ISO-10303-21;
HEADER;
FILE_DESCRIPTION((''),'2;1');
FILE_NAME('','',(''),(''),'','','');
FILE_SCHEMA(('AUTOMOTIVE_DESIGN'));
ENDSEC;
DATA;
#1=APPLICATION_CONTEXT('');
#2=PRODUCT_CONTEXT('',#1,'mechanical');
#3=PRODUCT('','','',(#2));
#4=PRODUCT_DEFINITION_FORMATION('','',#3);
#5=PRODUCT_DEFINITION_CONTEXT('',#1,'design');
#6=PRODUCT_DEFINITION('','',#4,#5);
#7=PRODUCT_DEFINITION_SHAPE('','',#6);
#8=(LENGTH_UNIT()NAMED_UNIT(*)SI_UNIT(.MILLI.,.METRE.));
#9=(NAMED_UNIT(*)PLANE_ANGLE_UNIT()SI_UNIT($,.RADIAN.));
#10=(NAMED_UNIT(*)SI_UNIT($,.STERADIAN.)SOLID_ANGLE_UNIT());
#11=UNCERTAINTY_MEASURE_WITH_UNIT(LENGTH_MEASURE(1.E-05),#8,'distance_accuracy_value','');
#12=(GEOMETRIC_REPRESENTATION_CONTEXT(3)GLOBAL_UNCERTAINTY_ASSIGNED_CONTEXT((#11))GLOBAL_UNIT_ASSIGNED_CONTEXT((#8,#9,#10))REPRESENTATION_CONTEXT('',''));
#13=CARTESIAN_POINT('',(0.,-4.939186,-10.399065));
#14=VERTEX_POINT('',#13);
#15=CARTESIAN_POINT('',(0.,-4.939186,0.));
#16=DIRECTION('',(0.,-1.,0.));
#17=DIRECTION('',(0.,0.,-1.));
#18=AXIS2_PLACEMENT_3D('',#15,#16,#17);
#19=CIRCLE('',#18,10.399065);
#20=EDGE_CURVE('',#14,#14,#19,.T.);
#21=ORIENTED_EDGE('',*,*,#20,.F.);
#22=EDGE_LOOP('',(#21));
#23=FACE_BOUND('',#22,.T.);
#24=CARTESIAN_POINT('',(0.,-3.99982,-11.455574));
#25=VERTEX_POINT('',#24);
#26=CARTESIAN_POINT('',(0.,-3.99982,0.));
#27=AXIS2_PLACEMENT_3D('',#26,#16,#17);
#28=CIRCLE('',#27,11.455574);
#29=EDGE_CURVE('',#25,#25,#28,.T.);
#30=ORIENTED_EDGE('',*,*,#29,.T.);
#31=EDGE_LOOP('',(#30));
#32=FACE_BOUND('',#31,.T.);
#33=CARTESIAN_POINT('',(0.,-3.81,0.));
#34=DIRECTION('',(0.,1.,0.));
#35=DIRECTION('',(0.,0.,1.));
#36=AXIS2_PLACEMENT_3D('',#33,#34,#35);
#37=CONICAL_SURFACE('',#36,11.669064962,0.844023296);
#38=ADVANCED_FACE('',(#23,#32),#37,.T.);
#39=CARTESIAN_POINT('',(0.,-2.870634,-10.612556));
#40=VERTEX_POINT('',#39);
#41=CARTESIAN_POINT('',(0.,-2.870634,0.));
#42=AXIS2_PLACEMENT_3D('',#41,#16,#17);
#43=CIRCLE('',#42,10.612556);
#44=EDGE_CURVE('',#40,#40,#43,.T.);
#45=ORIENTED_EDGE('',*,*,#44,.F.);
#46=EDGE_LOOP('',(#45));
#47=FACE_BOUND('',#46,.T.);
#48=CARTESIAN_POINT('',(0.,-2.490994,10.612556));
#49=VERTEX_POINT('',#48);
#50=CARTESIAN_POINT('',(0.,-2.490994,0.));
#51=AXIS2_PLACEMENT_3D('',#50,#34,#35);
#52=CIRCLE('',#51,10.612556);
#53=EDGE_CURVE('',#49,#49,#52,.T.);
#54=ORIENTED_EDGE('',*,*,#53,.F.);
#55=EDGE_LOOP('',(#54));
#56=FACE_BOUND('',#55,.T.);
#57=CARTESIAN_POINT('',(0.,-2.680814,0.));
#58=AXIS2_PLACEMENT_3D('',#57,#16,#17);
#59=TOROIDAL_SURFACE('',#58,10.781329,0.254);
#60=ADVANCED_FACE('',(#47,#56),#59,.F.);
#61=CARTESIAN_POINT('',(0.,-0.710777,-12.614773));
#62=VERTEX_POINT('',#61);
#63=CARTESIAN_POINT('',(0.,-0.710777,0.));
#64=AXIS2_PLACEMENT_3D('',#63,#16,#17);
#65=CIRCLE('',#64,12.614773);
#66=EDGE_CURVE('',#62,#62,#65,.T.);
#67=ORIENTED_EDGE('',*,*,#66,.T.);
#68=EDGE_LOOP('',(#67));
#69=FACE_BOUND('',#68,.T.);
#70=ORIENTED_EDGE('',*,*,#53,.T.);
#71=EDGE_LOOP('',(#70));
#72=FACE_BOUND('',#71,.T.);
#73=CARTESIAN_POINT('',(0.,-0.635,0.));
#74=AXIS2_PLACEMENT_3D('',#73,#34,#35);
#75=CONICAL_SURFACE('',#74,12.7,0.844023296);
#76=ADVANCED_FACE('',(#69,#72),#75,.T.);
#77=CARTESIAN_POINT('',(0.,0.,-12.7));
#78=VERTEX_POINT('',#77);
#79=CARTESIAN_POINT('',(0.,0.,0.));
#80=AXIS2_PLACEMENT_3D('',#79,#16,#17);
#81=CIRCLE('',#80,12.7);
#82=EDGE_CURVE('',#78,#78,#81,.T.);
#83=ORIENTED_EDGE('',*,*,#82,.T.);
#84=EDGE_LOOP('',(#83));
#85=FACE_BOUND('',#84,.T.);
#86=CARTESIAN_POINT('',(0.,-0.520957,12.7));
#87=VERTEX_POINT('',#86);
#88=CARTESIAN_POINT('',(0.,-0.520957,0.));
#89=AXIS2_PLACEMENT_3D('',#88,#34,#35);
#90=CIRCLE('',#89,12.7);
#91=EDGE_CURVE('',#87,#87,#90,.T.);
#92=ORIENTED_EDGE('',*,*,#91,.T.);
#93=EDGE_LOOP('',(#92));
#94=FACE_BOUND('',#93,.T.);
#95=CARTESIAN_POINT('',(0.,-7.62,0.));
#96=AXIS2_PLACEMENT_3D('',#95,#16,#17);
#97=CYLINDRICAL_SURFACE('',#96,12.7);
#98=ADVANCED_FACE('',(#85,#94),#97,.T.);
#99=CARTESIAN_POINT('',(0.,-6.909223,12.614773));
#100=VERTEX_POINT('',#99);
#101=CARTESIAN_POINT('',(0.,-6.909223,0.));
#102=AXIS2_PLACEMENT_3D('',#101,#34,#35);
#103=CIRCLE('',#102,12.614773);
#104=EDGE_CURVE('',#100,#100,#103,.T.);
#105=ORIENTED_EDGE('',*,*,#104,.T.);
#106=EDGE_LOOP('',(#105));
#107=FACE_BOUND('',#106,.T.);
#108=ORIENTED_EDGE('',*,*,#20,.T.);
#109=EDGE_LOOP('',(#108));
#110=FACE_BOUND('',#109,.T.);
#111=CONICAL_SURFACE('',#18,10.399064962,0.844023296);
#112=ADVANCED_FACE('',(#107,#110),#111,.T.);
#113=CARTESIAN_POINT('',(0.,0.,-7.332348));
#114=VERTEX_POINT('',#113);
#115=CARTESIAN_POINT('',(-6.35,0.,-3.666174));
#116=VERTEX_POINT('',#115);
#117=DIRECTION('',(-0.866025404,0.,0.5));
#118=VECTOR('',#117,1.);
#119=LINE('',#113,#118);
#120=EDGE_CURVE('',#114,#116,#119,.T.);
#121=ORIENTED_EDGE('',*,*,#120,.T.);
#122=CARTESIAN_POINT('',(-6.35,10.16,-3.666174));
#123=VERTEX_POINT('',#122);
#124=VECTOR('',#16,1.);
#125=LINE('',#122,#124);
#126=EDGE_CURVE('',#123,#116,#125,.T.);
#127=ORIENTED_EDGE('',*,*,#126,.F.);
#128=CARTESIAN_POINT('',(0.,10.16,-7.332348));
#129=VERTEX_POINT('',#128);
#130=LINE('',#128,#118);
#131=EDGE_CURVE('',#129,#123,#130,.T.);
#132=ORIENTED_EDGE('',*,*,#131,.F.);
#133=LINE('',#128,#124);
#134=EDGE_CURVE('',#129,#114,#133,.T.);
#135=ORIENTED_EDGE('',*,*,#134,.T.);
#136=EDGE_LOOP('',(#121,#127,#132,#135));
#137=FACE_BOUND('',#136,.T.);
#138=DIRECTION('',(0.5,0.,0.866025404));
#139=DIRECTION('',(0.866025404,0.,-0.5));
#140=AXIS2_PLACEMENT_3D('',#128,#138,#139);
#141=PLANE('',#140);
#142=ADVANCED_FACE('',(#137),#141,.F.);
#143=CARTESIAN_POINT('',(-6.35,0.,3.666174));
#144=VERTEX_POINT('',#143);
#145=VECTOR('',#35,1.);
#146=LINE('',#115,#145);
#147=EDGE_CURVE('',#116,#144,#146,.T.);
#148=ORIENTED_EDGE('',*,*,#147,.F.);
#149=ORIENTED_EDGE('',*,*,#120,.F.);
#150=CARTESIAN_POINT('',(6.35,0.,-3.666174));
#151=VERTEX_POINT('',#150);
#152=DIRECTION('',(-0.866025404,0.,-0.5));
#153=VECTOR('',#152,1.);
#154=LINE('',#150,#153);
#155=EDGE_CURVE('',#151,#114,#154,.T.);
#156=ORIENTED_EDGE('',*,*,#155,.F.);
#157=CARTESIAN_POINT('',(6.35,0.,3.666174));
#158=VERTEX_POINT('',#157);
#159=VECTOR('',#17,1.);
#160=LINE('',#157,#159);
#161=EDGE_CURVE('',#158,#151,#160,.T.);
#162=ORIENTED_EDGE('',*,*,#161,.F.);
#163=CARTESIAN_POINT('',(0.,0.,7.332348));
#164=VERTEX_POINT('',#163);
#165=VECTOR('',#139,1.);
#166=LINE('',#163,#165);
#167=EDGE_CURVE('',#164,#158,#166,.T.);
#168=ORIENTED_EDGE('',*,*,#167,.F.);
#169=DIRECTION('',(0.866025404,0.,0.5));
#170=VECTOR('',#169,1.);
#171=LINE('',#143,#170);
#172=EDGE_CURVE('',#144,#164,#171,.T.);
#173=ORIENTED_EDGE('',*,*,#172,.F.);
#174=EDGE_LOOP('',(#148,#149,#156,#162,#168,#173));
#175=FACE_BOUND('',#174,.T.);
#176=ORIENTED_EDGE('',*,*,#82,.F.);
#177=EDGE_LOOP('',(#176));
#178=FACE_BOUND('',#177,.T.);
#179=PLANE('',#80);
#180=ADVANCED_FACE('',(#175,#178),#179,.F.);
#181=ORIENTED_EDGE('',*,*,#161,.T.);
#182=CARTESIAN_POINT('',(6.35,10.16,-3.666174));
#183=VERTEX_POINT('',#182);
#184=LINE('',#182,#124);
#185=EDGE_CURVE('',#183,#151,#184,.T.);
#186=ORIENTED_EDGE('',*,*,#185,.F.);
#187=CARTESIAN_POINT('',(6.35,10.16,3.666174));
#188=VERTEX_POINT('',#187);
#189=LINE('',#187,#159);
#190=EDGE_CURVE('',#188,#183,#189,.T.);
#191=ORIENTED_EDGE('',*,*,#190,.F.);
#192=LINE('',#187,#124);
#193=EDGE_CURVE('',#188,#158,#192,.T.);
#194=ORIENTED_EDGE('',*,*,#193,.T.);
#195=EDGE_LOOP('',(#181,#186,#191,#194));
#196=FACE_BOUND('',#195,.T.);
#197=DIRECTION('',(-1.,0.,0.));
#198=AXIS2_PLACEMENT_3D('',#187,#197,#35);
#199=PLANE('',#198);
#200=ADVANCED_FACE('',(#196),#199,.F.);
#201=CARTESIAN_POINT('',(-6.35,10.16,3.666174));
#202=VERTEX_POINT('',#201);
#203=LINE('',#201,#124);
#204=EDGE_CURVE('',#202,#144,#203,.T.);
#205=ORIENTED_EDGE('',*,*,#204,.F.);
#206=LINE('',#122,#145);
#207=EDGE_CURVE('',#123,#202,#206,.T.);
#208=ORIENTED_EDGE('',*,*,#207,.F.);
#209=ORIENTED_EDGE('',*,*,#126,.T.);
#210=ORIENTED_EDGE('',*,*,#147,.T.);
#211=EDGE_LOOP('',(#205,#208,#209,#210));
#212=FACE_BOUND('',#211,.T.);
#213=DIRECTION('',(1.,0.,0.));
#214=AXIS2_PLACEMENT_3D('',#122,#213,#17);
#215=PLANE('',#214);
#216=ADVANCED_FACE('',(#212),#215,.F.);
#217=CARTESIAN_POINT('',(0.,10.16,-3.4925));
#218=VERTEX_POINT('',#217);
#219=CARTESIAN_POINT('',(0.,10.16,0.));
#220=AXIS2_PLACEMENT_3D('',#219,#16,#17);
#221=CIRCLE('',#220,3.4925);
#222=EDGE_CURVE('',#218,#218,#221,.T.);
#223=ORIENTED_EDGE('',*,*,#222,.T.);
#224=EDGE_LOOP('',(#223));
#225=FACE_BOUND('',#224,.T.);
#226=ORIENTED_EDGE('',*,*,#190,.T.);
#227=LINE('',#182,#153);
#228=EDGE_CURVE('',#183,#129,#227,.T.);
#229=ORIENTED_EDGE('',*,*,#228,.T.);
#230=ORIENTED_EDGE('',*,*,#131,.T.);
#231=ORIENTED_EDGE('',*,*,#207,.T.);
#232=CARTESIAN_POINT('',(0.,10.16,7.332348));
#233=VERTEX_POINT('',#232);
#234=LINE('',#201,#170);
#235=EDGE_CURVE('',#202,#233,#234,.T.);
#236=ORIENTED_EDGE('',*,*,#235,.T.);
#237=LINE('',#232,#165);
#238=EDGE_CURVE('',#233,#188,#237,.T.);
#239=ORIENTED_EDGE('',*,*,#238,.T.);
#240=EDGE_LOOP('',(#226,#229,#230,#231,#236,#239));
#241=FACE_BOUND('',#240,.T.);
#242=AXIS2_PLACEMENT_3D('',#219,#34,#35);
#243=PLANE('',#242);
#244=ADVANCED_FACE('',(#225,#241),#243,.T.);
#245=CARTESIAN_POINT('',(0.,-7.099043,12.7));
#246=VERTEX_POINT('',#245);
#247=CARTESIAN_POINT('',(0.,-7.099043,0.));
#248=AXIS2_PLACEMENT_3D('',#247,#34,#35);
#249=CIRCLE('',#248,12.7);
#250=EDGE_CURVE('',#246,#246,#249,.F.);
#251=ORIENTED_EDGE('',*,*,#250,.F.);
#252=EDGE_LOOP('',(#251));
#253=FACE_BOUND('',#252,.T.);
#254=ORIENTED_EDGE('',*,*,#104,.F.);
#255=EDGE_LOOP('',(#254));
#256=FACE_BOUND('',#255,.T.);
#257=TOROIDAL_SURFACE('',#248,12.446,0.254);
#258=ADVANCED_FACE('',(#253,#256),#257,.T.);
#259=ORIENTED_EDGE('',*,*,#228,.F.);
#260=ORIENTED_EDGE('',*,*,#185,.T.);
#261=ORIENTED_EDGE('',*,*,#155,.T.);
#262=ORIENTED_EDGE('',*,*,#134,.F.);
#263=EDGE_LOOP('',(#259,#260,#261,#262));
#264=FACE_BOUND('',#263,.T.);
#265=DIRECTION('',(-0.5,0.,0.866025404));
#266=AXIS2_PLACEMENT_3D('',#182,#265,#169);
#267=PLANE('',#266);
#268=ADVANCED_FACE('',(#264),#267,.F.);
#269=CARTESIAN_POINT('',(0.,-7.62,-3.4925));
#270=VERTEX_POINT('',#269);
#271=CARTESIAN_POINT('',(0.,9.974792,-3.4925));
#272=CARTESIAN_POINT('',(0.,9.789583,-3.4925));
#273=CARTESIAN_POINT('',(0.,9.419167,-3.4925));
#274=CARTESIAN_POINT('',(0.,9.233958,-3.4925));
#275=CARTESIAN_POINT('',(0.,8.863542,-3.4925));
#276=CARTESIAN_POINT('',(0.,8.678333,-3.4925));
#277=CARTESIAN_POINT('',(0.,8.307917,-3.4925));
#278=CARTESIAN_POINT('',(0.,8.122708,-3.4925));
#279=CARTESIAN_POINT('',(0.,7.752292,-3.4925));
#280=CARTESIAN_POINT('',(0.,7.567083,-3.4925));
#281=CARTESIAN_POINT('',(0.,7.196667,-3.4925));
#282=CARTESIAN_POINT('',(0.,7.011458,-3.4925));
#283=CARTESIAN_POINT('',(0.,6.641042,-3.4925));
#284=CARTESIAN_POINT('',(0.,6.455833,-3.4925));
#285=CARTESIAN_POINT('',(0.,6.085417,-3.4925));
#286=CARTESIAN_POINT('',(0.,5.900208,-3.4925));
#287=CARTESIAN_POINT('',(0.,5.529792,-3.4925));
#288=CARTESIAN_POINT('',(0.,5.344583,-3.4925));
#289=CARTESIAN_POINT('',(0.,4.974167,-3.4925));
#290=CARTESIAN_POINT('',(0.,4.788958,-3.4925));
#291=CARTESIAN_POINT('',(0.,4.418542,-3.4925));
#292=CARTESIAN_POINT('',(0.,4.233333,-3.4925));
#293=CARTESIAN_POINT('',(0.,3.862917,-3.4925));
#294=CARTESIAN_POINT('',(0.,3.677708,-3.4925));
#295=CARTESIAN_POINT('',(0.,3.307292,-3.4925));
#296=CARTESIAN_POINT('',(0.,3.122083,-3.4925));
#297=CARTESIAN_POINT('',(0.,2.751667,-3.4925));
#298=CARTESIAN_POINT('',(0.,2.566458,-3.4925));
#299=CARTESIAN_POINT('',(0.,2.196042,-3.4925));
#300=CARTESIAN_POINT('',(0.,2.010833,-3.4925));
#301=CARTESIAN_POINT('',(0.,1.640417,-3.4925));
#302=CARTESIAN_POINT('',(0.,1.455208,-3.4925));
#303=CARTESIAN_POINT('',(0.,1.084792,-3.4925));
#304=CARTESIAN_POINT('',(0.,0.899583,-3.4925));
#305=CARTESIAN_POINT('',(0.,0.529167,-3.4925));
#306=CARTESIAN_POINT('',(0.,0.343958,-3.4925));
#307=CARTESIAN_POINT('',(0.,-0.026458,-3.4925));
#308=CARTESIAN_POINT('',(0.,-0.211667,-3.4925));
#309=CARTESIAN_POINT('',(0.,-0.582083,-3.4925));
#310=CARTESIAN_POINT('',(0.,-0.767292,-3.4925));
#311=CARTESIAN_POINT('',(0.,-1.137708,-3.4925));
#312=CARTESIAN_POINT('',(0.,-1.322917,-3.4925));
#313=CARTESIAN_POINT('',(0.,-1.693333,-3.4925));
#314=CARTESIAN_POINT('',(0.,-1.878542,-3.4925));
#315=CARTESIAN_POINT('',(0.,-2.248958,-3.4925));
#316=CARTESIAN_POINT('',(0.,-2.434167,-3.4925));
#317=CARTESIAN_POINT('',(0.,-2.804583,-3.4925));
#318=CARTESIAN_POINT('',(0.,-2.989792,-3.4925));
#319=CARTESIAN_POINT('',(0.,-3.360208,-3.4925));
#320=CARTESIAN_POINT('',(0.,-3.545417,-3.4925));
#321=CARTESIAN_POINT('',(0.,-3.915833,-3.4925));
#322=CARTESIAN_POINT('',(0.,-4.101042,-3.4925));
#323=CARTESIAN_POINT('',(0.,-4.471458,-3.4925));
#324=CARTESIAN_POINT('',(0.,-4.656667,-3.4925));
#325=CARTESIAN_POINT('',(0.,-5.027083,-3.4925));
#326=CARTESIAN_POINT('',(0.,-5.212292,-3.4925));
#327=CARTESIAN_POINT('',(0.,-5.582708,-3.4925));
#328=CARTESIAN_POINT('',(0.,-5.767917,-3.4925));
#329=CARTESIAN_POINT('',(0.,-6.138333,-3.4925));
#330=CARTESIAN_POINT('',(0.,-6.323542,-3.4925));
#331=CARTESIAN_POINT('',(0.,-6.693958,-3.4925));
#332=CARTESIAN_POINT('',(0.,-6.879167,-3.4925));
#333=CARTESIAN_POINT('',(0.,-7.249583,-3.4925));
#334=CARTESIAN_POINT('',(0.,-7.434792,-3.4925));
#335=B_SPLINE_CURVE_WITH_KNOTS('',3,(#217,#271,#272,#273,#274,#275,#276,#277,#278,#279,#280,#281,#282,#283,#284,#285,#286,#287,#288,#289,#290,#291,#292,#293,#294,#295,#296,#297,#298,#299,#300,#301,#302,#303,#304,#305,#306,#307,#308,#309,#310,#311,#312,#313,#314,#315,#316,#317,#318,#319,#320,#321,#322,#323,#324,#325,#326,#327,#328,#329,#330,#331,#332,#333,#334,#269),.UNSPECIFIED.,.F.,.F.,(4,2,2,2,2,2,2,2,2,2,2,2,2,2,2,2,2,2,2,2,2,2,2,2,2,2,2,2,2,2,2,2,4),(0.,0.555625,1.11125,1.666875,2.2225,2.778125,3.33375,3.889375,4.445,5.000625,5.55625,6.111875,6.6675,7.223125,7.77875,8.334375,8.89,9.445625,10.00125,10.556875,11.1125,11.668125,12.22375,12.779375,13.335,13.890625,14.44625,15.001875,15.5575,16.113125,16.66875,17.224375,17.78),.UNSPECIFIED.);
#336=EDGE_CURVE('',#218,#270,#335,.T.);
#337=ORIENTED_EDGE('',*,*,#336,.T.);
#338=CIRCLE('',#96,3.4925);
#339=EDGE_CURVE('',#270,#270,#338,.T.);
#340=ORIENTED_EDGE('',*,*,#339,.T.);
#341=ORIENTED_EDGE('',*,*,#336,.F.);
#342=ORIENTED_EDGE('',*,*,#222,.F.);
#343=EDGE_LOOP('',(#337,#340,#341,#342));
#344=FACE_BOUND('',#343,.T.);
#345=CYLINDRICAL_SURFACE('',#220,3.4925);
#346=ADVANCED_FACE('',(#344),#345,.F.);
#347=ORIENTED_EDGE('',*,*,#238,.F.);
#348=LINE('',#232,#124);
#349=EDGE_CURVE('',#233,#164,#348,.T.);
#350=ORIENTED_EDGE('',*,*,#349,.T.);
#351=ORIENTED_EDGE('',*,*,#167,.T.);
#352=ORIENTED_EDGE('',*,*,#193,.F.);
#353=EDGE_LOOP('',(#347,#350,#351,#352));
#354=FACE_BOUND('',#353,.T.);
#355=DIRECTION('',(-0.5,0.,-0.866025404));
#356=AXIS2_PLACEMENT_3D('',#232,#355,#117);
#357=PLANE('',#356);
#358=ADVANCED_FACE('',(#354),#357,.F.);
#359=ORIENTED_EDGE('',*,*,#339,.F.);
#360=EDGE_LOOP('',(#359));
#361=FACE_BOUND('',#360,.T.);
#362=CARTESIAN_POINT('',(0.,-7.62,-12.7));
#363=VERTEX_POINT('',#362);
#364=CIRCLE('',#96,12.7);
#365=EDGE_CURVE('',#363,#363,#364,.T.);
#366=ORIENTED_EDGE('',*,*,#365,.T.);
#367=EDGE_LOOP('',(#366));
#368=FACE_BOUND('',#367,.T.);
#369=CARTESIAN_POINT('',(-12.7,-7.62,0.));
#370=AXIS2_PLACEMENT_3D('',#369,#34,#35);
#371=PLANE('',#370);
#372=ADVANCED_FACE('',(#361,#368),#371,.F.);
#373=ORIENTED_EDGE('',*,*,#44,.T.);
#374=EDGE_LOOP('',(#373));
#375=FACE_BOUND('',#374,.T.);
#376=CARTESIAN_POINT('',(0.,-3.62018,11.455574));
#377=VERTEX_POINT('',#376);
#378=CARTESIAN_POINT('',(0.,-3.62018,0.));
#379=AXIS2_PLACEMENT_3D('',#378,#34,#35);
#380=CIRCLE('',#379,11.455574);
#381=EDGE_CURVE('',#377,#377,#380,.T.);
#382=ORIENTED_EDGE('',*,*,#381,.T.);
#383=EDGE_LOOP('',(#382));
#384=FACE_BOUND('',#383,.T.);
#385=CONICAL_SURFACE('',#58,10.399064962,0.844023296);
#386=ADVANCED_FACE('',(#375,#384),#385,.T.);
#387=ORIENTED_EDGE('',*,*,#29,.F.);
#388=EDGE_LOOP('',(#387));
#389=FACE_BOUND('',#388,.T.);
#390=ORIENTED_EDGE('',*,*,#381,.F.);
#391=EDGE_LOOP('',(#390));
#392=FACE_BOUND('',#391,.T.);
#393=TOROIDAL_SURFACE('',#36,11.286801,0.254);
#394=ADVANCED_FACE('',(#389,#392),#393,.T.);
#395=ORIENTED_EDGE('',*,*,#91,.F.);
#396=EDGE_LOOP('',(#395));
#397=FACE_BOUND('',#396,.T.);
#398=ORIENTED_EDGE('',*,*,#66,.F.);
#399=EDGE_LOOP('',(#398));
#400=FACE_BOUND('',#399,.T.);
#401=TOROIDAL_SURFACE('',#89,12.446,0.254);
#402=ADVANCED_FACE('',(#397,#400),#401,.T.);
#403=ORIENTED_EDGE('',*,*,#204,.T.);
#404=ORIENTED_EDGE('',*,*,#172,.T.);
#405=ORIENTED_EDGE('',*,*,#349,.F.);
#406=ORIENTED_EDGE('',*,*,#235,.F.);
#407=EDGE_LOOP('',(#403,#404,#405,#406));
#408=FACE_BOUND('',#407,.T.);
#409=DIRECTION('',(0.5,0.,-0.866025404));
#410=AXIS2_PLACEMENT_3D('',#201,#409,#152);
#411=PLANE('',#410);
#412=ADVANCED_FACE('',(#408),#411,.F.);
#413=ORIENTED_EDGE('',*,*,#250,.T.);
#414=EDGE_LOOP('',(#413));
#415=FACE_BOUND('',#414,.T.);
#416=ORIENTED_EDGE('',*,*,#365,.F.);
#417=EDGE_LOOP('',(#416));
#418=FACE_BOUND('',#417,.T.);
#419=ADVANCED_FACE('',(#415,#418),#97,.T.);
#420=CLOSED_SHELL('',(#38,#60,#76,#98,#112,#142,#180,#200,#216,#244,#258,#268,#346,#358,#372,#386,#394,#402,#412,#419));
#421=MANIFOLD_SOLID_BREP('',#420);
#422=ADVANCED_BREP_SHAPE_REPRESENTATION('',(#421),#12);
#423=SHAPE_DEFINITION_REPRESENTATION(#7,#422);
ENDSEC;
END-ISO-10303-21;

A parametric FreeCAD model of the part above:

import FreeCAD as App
import Part
import Sketcher

V = App.Vector
Q = App.Units.Quantity


def edges_at(feature, points):
    """Names of the edges that pass closest to the given points."""
    edges = feature.Shape.Edges
    near = lambda p: min(range(len(edges)), key=lambda i: edges[i].distToShape(Part.Vertex(*p))[0])
    return sorted({f"Edge{near(p) + 1}" for p in points})


def add_polygon(sketch, points):
    """Adds a closed chain of lines whose ends are joined by coincident constraints."""
    first, n = sketch.GeometryCount, len(points)
    for a, b in zip(points, points[1:] + points[:1]):
        sketch.addGeometry(Part.LineSegment(App.Vector(*a, 0), App.Vector(*b, 0)), False)
    for i in range(n):
        sketch.addConstraint(Sketcher.Constraint("Coincident", first + i, 2, first + (i + 1) % n, 1))

doc = App.newDocument("Part")
params = doc.addObject("Spreadsheet::Sheet", "Params")
for row, (alias, value) in enumerate([
    ("pad1_length", "0.4 in"),
    ("sketch2_width", "0.5 in"),
    ("sketch2_height", "0.3 in"),
    ("sketch2_height2", "0.025 in"),
    ("revolution_angle", "360 deg"),
    ("fillet_radius", "0.01 in"),
    ("sketch3_diameter", "0.275 in"),
], start=1):
    params.set(f"A{row}", alias)
    params.set(f"B{row}", "=" + value)
    params.setAlias(f"B{row}", alias)

body = doc.addObject("PartDesign::Body", "Body")

# Sketch on XZ plane
sketch1 = doc.addObject("Sketcher::SketchObject", "Sketch")
body.addObject(sketch1)
sketch1.AttachmentSupport = (doc.XZ_Plane, [""])
sketch1.MapMode = "FlatFace"
add_polygon(sketch1, [(0, -7.332348), (-6.35, -3.666174), (-6.35, 3.666174), (0, 7.332348), (6.35, 3.666174), (6.35, -3.666174)])  # lines 0-5
sketch1.addConstraint([
    Sketcher.Constraint("Vertical", 1),
    Sketcher.Constraint("Vertical", 4),
    Sketcher.Constraint("Symmetric", 0, 2, 3, 2, -1, 1),
    Sketcher.Constraint("Symmetric", 2, 2, 5, 2, -1, 1),
    Sketcher.Constraint("PointOnObject", 2, 2, -2),
    Sketcher.Constraint("Parallel", 2, 5),
    Sketcher.Constraint("Horizontal", 1, 2, 3, 2),
    Sketcher.Constraint("Angle", 0, Q("150 deg")),
    Sketcher.Constraint("DistanceX", 1, 2, 3, 2, Q("0.5 in")),
    Sketcher.Constraint("DistanceY", 1, 1, 1, 2, Q("7.332348 mm")),
])
pad1 = doc.addObject("PartDesign::Pad", "Pad")
body.addObject(pad1)
pad1.Profile = sketch1
pad1.setExpression("Length", "Params.pad1_length")
pad1.Reversed = True

# Sketch on XY plane
sketch2 = doc.addObject("Sketcher::SketchObject", "Sketch001")
body.addObject(sketch2)
sketch2.AttachmentSupport = (doc.XY_Plane, [""])
sketch2.MapMode = "FlatFace"
add_polygon(sketch2, [(0, 0), (-12.7, 0), (-12.7, -0.635), (-10.399065, -2.680814), (-11.669065, -3.81), (-10.399065, -4.939186), (-12.7, -6.985), (-12.7, -7.62), (0, -7.62)])  # lines 0-8
sketch2.addConstraint([
    Sketcher.Constraint("Horizontal", 0),
    Sketcher.Constraint("Vertical", 1),
    Sketcher.Constraint("Vertical", 6),
    Sketcher.Constraint("Horizontal", 7),
    Sketcher.Constraint("Vertical", 8),
    Sketcher.Constraint("Coincident", 8, 2, -1, 1),
    Sketcher.Constraint("Parallel", 2, 4),
    Sketcher.Constraint("Parallel", 3, 5),
    Sketcher.Constraint("Vertical", 2, 2, 4, 2),
    Sketcher.Constraint("Vertical", 1, 2, 5, 2),
    Sketcher.Constraint("Equal", 1, 6),
    Sketcher.Constraint("Equal", 3, 4),
    Sketcher.Constraint("DistanceX", 0, 2, 0, 1, Q("0.5 in")),
    Sketcher.Constraint("DistanceY", 8, 1, 8, 2, Q("0.3 in")),
    Sketcher.Constraint("DistanceY", 1, 2, 1, 1, Q("0.025 in")),
    Sketcher.Constraint("DistanceX", 3, 2, 2, 2, Q("0.05 in")),
    Sketcher.Constraint("Distance", 3, Q("1.6994 mm")),
])
sketch2.setExpression("Constraints[21]", "Params.sketch2_width")
sketch2.setExpression("Constraints[22]", "Params.sketch2_height")
sketch2.setExpression("Constraints[23]", "Params.sketch2_height2")
revolution = doc.addObject("PartDesign::Revolution", "Revolution")
body.addObject(revolution)
revolution.Profile = sketch2
revolution.ReferenceAxis = (sketch2, ["V_Axis"])
revolution.setExpression("Angle", "Params.revolution_angle")
doc.recompute()

fillet = doc.addObject("PartDesign::Fillet", "Fillet")
body.addObject(fillet)
fillet.Base = (revolution, edges_at(revolution, [
    (0, -0.635, 12.7),
    (0, -2.681, 10.399),
    (0, -3.81, 11.669),
    (0, -6.985, 12.7),
]))
fillet.setExpression("Radius", "Params.fillet_radius")

# Sketch on XZ plane
sketch3 = doc.addObject("Sketcher::SketchObject", "Sketch002")
body.addObject(sketch3)
sketch3.AttachmentSupport = (doc.XZ_Plane, [""])
sketch3.MapMode = "FlatFace"
sketch3.AttachmentOffset = App.Placement(V(0, 0, 0.3 * 25.4), App.Rotation())
sketch3.addGeometry(Part.Circle(V(0, 0, 0), V(0, 0, 1), 3.4925), False)
sketch3.addConstraint([
    Sketcher.Constraint("Coincident", 0, 3, -1, 1),
    Sketcher.Constraint("Diameter", 0, Q("0.275 in")),
])
sketch3.setExpression("Constraints[1]", "Params.sketch3_diameter")
pocket1 = doc.addObject("PartDesign::Pocket", "Pocket")
body.addObject(pocket1)
pocket1.Profile = sketch3
pocket1.Type = "ThroughAll"

doc.recompute()
